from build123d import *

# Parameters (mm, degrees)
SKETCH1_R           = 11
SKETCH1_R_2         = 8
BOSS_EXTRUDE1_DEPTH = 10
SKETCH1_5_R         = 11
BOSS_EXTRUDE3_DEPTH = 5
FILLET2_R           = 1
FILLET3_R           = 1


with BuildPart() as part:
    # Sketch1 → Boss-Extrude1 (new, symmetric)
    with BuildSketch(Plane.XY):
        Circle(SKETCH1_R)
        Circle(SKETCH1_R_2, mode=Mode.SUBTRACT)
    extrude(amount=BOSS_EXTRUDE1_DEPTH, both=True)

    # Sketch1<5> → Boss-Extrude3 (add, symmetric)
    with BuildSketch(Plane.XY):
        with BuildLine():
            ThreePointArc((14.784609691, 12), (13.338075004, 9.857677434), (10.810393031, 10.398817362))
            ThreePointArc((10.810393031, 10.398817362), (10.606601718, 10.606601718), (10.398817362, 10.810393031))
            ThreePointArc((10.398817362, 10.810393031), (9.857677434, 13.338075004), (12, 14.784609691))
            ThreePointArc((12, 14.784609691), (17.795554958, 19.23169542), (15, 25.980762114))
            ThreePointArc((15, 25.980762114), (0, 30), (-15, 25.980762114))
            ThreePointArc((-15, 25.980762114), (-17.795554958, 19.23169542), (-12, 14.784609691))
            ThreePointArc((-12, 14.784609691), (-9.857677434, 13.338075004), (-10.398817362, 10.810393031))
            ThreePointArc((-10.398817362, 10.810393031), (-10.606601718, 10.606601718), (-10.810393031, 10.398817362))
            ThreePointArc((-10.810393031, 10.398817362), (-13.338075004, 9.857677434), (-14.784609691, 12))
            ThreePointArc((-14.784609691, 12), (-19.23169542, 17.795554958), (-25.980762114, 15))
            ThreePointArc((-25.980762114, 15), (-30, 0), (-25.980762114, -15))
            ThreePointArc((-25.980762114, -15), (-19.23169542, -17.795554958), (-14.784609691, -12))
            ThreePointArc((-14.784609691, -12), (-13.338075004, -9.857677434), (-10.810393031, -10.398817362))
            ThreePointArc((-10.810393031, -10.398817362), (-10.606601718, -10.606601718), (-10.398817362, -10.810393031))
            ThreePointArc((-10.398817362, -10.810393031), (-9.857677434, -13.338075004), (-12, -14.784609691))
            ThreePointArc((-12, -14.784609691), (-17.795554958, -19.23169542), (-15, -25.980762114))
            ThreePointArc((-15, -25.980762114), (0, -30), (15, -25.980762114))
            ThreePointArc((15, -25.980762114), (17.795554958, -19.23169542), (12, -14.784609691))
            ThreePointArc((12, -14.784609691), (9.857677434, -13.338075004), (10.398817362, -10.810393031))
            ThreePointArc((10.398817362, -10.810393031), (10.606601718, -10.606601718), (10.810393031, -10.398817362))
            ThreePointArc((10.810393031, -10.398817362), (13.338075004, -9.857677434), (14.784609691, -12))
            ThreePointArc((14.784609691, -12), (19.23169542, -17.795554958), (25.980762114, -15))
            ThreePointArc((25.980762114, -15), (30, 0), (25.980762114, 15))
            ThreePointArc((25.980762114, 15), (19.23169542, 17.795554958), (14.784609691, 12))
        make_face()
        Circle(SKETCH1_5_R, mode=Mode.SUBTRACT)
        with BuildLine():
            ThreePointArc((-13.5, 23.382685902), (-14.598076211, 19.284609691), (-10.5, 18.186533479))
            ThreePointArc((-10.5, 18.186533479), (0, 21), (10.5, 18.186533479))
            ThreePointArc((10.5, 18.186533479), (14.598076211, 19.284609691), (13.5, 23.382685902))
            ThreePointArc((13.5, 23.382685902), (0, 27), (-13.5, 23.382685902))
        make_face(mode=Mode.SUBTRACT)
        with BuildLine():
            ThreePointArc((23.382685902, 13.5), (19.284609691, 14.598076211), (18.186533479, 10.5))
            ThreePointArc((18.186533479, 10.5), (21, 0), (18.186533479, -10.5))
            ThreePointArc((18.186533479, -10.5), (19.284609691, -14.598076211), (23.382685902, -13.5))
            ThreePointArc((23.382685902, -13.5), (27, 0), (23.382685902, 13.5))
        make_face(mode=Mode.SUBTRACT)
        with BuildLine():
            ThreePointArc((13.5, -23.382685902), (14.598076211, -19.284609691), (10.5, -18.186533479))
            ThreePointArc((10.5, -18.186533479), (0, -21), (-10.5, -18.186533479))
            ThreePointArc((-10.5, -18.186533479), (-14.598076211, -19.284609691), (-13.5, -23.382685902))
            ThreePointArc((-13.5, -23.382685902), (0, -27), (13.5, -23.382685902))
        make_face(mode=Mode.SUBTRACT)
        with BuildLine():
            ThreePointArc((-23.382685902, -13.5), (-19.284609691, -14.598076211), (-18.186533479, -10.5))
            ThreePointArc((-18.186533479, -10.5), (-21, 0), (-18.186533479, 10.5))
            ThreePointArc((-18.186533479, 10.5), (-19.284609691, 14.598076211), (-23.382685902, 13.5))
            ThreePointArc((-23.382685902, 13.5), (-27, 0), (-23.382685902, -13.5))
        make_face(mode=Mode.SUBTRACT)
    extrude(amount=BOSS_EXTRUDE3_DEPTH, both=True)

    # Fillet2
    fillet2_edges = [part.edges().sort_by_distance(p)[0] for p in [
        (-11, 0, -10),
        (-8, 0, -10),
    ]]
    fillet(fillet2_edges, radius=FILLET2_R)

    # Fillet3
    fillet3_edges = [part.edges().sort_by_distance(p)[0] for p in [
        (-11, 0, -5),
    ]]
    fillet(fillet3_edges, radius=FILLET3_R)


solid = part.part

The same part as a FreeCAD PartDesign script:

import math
import FreeCAD as App
import Part
import Sketcher


def edges_at(feature, points):
    """Names of the edges that pass closest to the given points."""
    edges = feature.Shape.Edges
    near = lambda p: min(range(len(edges)), key=lambda i: edges[i].distToShape(Part.Vertex(*p))[0])
    return sorted({f"Edge{near(p) + 1}" for p in points})

doc = App.newDocument("Part")
params = doc.addObject("Spreadsheet::Sheet", "Params")
for row, (alias, value) in enumerate([
    ("sketch1_diameter", "22 mm"),
    ("sketch1_diameter2", "16 mm"),
    ("pad1_length", "20 mm"),
    ("sketch2_diameter", "22 mm"),
    ("sketch2_radius", "15.000001 mm"),
    ("sketch2_radius2", "6 mm"),
    ("sketch2_radius3", "30 mm"),
    ("sketch2_radius4", "3 mm"),
    ("pad2_length", "10 mm"),
    ("fillet_radius", "1 mm"),
    ("fillet2_radius", "1 mm"),
], start=1):
    params.set(f"A{row}", alias)
    params.set(f"B{row}", "=" + value)
    params.setAlias(f"B{row}", alias)

body = doc.addObject("PartDesign::Body", "Body")

# Sketch on XY plane
sketch1 = body.newObject("Sketcher::SketchObject", "Sketch")
sketch1.AttachmentSupport = (doc.getObject("XY_Plane"), [""])
sketch1.MapMode = "FlatFace"
sketch1.addGeometry(Part.Circle(App.Vector(0, 0, 0), App.Vector(0, 0, 1), 11), False)
sketch1.addGeometry(Part.Circle(App.Vector(0, 0, 0), App.Vector(0, 0, 1), 8), False)
sketch1.addConstraint(Sketcher.Constraint("Coincident", 0, 3, -1, 1))
sketch1.addConstraint(Sketcher.Constraint("Coincident", 1, 3, -1, 1))
sketch1.addConstraint(Sketcher.Constraint("Diameter", 0, 22.0))
sketch1.addConstraint(Sketcher.Constraint("Diameter", 1, 16.0))
sketch1.setExpression("Constraints[2]", "Params.sketch1_diameter")
sketch1.setExpression("Constraints[3]", "Params.sketch1_diameter2")
pad1 = body.newObject("PartDesign::Pad", "Pad")
pad1.Profile = sketch1
pad1.setExpression("Length", "Params.pad1_length")
pad1.Midplane = True

# Sketch on XY plane
sketch2 = body.newObject("Sketcher::SketchObject", "Sketch001")
sketch2.AttachmentSupport = (doc.getObject("XY_Plane"), [""])
sketch2.MapMode = "FlatFace"
sketch2.addGeometry(Part.ArcOfCircle(Part.Circle(App.Vector(12.474949, 12, 0), App.Vector(0, 0, 1), 2.309661), math.radians(-136.111715), math.radians(0)), False)
sketch2.addGeometry(Part.ArcOfCircle(Part.Circle(App.Vector(-0.000001, -0.000001, 0), App.Vector(0, 0, 1), 15.000001), math.radians(43.888285), math.radians(46.111715)), False)
sketch2.addGeometry(Part.ArcOfCircle(Part.Circle(App.Vector(12, 12.474949, 0), App.Vector(0, 0, 1), 2.309661), math.radians(90), math.radians(226.111715)), False)
sketch2.addGeometry(Part.ArcOfCircle(Part.Circle(App.Vector(12, 20.78461, 0), App.Vector(0, 0, 1), 6), math.radians(-90), math.radians(60)), False)
sketch2.addGeometry(Part.ArcOfCircle(Part.Circle(App.Vector(0, 0, 0), App.Vector(0, 0, 1), 30), math.radians(60), math.radians(120)), False)
sketch2.addGeometry(Part.ArcOfCircle(Part.Circle(App.Vector(-12, 20.78461, 0), App.Vector(0, 0, 1), 6), math.radians(120), math.radians(270)), False)
sketch2.addGeometry(Part.ArcOfCircle(Part.Circle(App.Vector(-12, 12.474949, 0), App.Vector(0, 0, 1), 2.309661), math.radians(-46.111715), math.radians(90)), False)
sketch2.addGeometry(Part.ArcOfCircle(Part.Circle(App.Vector(0.000001, -0.000001, 0), App.Vector(0, 0, 1), 15.000001), math.radians(133.888285), math.radians(136.111715)), False)
sketch2.addGeometry(Part.ArcOfCircle(Part.Circle(App.Vector(-12.474949, 12, 0), App.Vector(0, 0, 1), 2.309661), math.radians(180), math.radians(316.111715)), False)
sketch2.addGeometry(Part.ArcOfCircle(Part.Circle(App.Vector(-20.78461, 12, 0), App.Vector(0, 0, 1), 6), math.radians(0), math.radians(150)), False)
sketch2.addGeometry(Part.ArcOfCircle(Part.Circle(App.Vector(0, 0, 0), App.Vector(0, 0, 1), 30), math.radians(150), math.radians(210)), False)
sketch2.addGeometry(Part.ArcOfCircle(Part.Circle(App.Vector(-20.78461, -12, 0), App.Vector(0, 0, 1), 6), math.radians(-150), math.radians(0)), False)
sketch2.addGeometry(Part.ArcOfCircle(Part.Circle(App.Vector(-12.474949, -12, 0), App.Vector(0, 0, 1), 2.309661), math.radians(43.888285), math.radians(180)), False)
sketch2.addGeometry(Part.ArcOfCircle(Part.Circle(App.Vector(0.000001, 0.000001, 0), App.Vector(0, 0, 1), 15.000001), math.radians(-136.111715), math.radians(-133.888285)), False)
sketch2.addGeometry(Part.ArcOfCircle(Part.Circle(App.Vector(-12, -12.474949, 0), App.Vector(0, 0, 1), 2.309661), math.radians(-90), math.radians(46.111715)), False)
sketch2.addGeometry(Part.ArcOfCircle(Part.Circle(App.Vector(-12, -20.78461, 0), App.Vector(0, 0, 1), 6), math.radians(90), math.radians(240)), False)
sketch2.addGeometry(Part.ArcOfCircle(Part.Circle(App.Vector(0, 0, 0), App.Vector(0, 0, 1), 30), math.radians(-120), math.radians(-60)), False)
sketch2.addGeometry(Part.ArcOfCircle(Part.Circle(App.Vector(12, -20.78461, 0), App.Vector(0, 0, 1), 6), math.radians(-60), math.radians(90)), False)
sketch2.addGeometry(Part.ArcOfCircle(Part.Circle(App.Vector(12, -12.474949, 0), App.Vector(0, 0, 1), 2.309661), math.radians(133.888285), math.radians(270)), False)
sketch2.addGeometry(Part.ArcOfCircle(Part.Circle(App.Vector(-0.000001, 0.000001, 0), App.Vector(0, 0, 1), 15.000001), math.radians(-46.111715), math.radians(-43.888285)), False)
sketch2.addGeometry(Part.ArcOfCircle(Part.Circle(App.Vector(12.474949, -12, 0), App.Vector(0, 0, 1), 2.309661), math.radians(0), math.radians(136.111715)), False)
sketch2.addGeometry(Part.ArcOfCircle(Part.Circle(App.Vector(20.78461, -12, 0), App.Vector(0, 0, 1), 6), math.radians(180), math.radians(330)), False)
sketch2.addGeometry(Part.ArcOfCircle(Part.Circle(App.Vector(0, 0, 0), App.Vector(0, 0, 1), 30), math.radians(-30), math.radians(30)), False)
sketch2.addGeometry(Part.ArcOfCircle(Part.Circle(App.Vector(20.78461, 12, 0), App.Vector(0, 0, 1), 6), math.radians(30), math.radians(180)), False)
sketch2.addGeometry(Part.ArcOfCircle(Part.Circle(App.Vector(12, -20.78461, 0), App.Vector(0, 0, 1), 3), math.radians(-60), math.radians(120)), False)
sketch2.addGeometry(Part.ArcOfCircle(Part.Circle(App.Vector(0, 0, 0), App.Vector(0, 0, 1), 27), math.radians(-120), math.radians(-60)), False)
sketch2.addGeometry(Part.ArcOfCircle(Part.Circle(App.Vector(-12, -20.78461, 0), App.Vector(0, 0, 1), 3), math.radians(60), math.radians(240)), False)
sketch2.addGeometry(Part.ArcOfCircle(Part.Circle(App.Vector(0, 0, 0), App.Vector(0, 0, 1), 21), math.radians(-120), math.radians(-60)), False)
sketch2.addGeometry(Part.ArcOfCircle(Part.Circle(App.Vector(-20.78461, -12, 0), App.Vector(0, 0, 1), 3), math.radians(-150), math.radians(30)), False)
sketch2.addGeometry(Part.ArcOfCircle(Part.Circle(App.Vector(0, 0, 0), App.Vector(0, 0, 1), 27), math.radians(150), math.radians(210)), False)
sketch2.addGeometry(Part.ArcOfCircle(Part.Circle(App.Vector(-20.78461, 12, 0), App.Vector(0, 0, 1), 3), math.radians(-30), math.radians(150)), False)
sketch2.addGeometry(Part.ArcOfCircle(Part.Circle(App.Vector(0, 0, 0), App.Vector(0, 0, 1), 21), math.radians(150), math.radians(210)), False)
sketch2.addGeometry(Part.Circle(App.Vector(0, 0, 0), App.Vector(0, 0, 1), 11), False)
sketch2.addGeometry(Part.ArcOfCircle(Part.Circle(App.Vector(20.78461, 12, 0), App.Vector(0, 0, 1), 3), math.radians(30), math.radians(210)), False)
sketch2.addGeometry(Part.ArcOfCircle(Part.Circle(App.Vector(0, 0, 0), App.Vector(0, 0, 1), 27), math.radians(-30), math.radians(30)), False)
sketch2.addGeometry(Part.ArcOfCircle(Part.Circle(App.Vector(20.78461, -12, 0), App.Vector(0, 0, 1), 3), math.radians(150), math.radians(330)), False)
sketch2.addGeometry(Part.ArcOfCircle(Part.Circle(App.Vector(0, 0, 0), App.Vector(0, 0, 1), 21), math.radians(-30), math.radians(30)), False)
sketch2.addGeometry(Part.ArcOfCircle(Part.Circle(App.Vector(-12, 20.78461, 0), App.Vector(0, 0, 1), 3), math.radians(120), math.radians(300)), False)
sketch2.addGeometry(Part.ArcOfCircle(Part.Circle(App.Vector(0, 0, 0), App.Vector(0, 0, 1), 27), math.radians(60), math.radians(120)), False)
sketch2.addGeometry(Part.ArcOfCircle(Part.Circle(App.Vector(12, 20.78461, 0), App.Vector(0, 0, 1), 3), math.radians(-120), math.radians(60)), False)
sketch2.addGeometry(Part.ArcOfCircle(Part.Circle(App.Vector(0, 0, 0), App.Vector(0, 0, 1), 21), math.radians(60), math.radians(120)), False)
sketch2.addConstraint(Sketcher.Constraint("Tangent", 0, 1, 1, 1))
sketch2.addConstraint(Sketcher.Constraint("Tangent", 1, 2, 2, 2))
sketch2.addConstraint(Sketcher.Constraint("Tangent", 2, 1, 3, 1))
sketch2.addConstraint(Sketcher.Constraint("Tangent", 3, 2, 4, 1))
sketch2.addConstraint(Sketcher.Constraint("Tangent", 4, 2, 5, 1))
sketch2.addConstraint(Sketcher.Constraint("Tangent", 5, 2, 6, 2))
sketch2.addConstraint(Sketcher.Constraint("Tangent", 6, 1, 7, 1))
sketch2.addConstraint(Sketcher.Constraint("Tangent", 7, 2, 8, 2))
sketch2.addConstraint(Sketcher.Constraint("Tangent", 8, 1, 9, 1))
sketch2.addConstraint(Sketcher.Constraint("Tangent", 9, 2, 10, 1))
sketch2.addConstraint(Sketcher.Constraint("Tangent", 10, 2, 11, 1))
sketch2.addConstraint(Sketcher.Constraint("Tangent", 11, 2, 12, 2))
sketch2.addConstraint(Sketcher.Constraint("Tangent", 12, 1, 13, 1))
sketch2.addConstraint(Sketcher.Constraint("Tangent", 13, 2, 14, 2))
sketch2.addConstraint(Sketcher.Constraint("Tangent", 14, 1, 15, 1))
sketch2.addConstraint(Sketcher.Constraint("Tangent", 15, 2, 16, 1))
sketch2.addConstraint(Sketcher.Constraint("Tangent", 16, 2, 17, 1))
sketch2.addConstraint(Sketcher.Constraint("Tangent", 17, 2, 18, 2))
sketch2.addConstraint(Sketcher.Constraint("Tangent", 18, 1, 19, 1))
sketch2.addConstraint(Sketcher.Constraint("Tangent", 19, 2, 20, 2))
sketch2.addConstraint(Sketcher.Constraint("Tangent", 20, 1, 21, 1))
sketch2.addConstraint(Sketcher.Constraint("Tangent", 21, 2, 22, 1))
sketch2.addConstraint(Sketcher.Constraint("Tangent", 22, 2, 23, 1))
sketch2.addConstraint(Sketcher.Constraint("Tangent", 23, 2, 0, 2))
sketch2.addConstraint(Sketcher.Constraint("Tangent", 24, 1, 25, 2))
sketch2.addConstraint(Sketcher.Constraint("Tangent", 25, 1, 26, 2))
sketch2.addConstraint(Sketcher.Constraint("Tangent", 26, 1, 27, 1))
sketch2.addConstraint(Sketcher.Constraint("Tangent", 27, 2, 24, 2))
sketch2.addConstraint(Sketcher.Constraint("Tangent", 28, 1, 29, 2))
sketch2.addConstraint(Sketcher.Constraint("Tangent", 29, 1, 30, 2))
sketch2.addConstraint(Sketcher.Constraint("Tangent", 30, 1, 31, 1))
sketch2.addConstraint(Sketcher.Constraint("Tangent", 31, 2, 28, 2))
sketch2.addConstraint(Sketcher.Constraint("Tangent", 33, 1, 34, 2))
sketch2.addConstraint(Sketcher.Constraint("Tangent", 34, 1, 35, 2))
sketch2.addConstraint(Sketcher.Constraint("Tangent", 35, 1, 36, 1))
sketch2.addConstraint(Sketcher.Constraint("Tangent", 36, 2, 33, 2))
sketch2.addConstraint(Sketcher.Constraint("Tangent", 37, 1, 38, 2))
sketch2.addConstraint(Sketcher.Constraint("Tangent", 38, 1, 39, 2))
sketch2.addConstraint(Sketcher.Constraint("Tangent", 39, 1, 40, 1))
sketch2.addConstraint(Sketcher.Constraint("Tangent", 40, 2, 37, 2))
sketch2.addConstraint(Sketcher.Constraint("Coincident", 1, 3, -1, 1))
sketch2.addConstraint(Sketcher.Constraint("Coincident", 4, 3, -1, 1))
sketch2.addConstraint(Sketcher.Constraint("Coincident", 7, 3, -1, 1))
sketch2.addConstraint(Sketcher.Constraint("Coincident", 10, 3, -1, 1))
sketch2.addConstraint(Sketcher.Constraint("Coincident", 13, 3, -1, 1))
sketch2.addConstraint(Sketcher.Constraint("Coincident", 16, 3, -1, 1))
sketch2.addConstraint(Sketcher.Constraint("Coincident", 19, 3, -1, 1))
sketch2.addConstraint(Sketcher.Constraint("Coincident", 22, 3, -1, 1))
sketch2.addConstraint(Sketcher.Constraint("Coincident", 25, 3, -1, 1))
sketch2.addConstraint(Sketcher.Constraint("Coincident", 27, 3, -1, 1))
sketch2.addConstraint(Sketcher.Constraint("Coincident", 29, 3, -1, 1))
sketch2.addConstraint(Sketcher.Constraint("Coincident", 31, 3, -1, 1))
sketch2.addConstraint(Sketcher.Constraint("Coincident", 32, 3, -1, 1))
sketch2.addConstraint(Sketcher.Constraint("Coincident", 34, 3, -1, 1))
sketch2.addConstraint(Sketcher.Constraint("Coincident", 36, 3, -1, 1))
sketch2.addConstraint(Sketcher.Constraint("Coincident", 38, 3, -1, 1))
sketch2.addConstraint(Sketcher.Constraint("Coincident", 40, 3, -1, 1))
sketch2.addConstraint(Sketcher.Constraint("Coincident", 24, 3, 17, 3))
sketch2.addConstraint(Sketcher.Constraint("Coincident", 26, 3, 15, 3))
sketch2.addConstraint(Sketcher.Constraint("Coincident", 28, 3, 11, 3))
sketch2.addConstraint(Sketcher.Constraint("Coincident", 30, 3, 9, 3))
sketch2.addConstraint(Sketcher.Constraint("Coincident", 33, 3, 23, 3))
sketch2.addConstraint(Sketcher.Constraint("Coincident", 35, 3, 21, 3))
sketch2.addConstraint(Sketcher.Constraint("Coincident", 37, 3, 5, 3))
sketch2.addConstraint(Sketcher.Constraint("Coincident", 39, 3, 3, 3))
sketch2.addConstraint(Sketcher.Constraint("Equal", 0, 2))
sketch2.addConstraint(Sketcher.Constraint("Equal", 2, 6))
sketch2.addConstraint(Sketcher.Constraint("Equal", 1, 7))
sketch2.addConstraint(Sketcher.Constraint("Equal", 6, 8))
sketch2.addConstraint(Sketcher.Constraint("Equal", 5, 9))
sketch2.addConstraint(Sketcher.Constraint("Equal", 4, 10))
sketch2.addConstraint(Sketcher.Constraint("Equal", 8, 12))
sketch2.addConstraint(Sketcher.Constraint("Equal", 7, 13))
sketch2.addConstraint(Sketcher.Constraint("Equal", 12, 14))
sketch2.addConstraint(Sketcher.Constraint("Equal", 11, 15))
sketch2.addConstraint(Sketcher.Constraint("Equal", 10, 16))
sketch2.addConstraint(Sketcher.Constraint("Equal", 14, 18))
sketch2.addConstraint(Sketcher.Constraint("Equal", 13, 19))
sketch2.addConstraint(Sketcher.Constraint("Equal", 18, 20))
sketch2.addConstraint(Sketcher.Constraint("Equal", 17, 21))
sketch2.addConstraint(Sketcher.Constraint("Equal", 16, 22))
sketch2.addConstraint(Sketcher.Constraint("Equal", 26, 28))
sketch2.addConstraint(Sketcher.Constraint("Equal", 30, 33))
sketch2.addConstraint(Sketcher.Constraint("Equal", 35, 37))
sketch2.addConstraint(Sketcher.Constraint("Horizontal", 3, 3, 5, 3))
sketch2.addConstraint(Sketcher.Constraint("Horizontal", 0, 3, 8, 3))
sketch2.addConstraint(Sketcher.Constraint("Horizontal", 8, 3, 9, 3))
sketch2.addConstraint(Sketcher.Constraint("Horizontal", 11, 3, 12, 3))
sketch2.addConstraint(Sketcher.Constraint("Horizontal", 15, 3, 17, 3))
sketch2.addConstraint(Sketcher.Constraint("Horizontal", 12, 3, 20, 3))
sketch2.addConstraint(Sketcher.Constraint("Vertical", 2, 3, 3, 3))
sketch2.addConstraint(Sketcher.Constraint("Vertical", 6, 3, 14, 3))
sketch2.addConstraint(Sketcher.Constraint("Diameter", 32, 22.0))
sketch2.addConstraint(Sketcher.Constraint("Radius", 1, 15.000001))
sketch2.addConstraint(Sketcher.Constraint("Radius", 3, 6.0))
sketch2.addConstraint(Sketcher.Constraint("Radius", 4, 30.0))
sketch2.addConstraint(Sketcher.Constraint("Radius", 24, 3.0))
sketch2.addConstraint(Sketcher.Constraint("DistanceY", -1, 1, 0, 3, 12.0))
sketch2.setExpression("Constraints[92]", "Params.sketch2_diameter")
sketch2.setExpression("Constraints[93]", "Params.sketch2_radius")
sketch2.setExpression("Constraints[94]", "Params.sketch2_radius2")
sketch2.setExpression("Constraints[95]", "Params.sketch2_radius3")
sketch2.setExpression("Constraints[96]", "Params.sketch2_radius4")
pad2 = body.newObject("PartDesign::Pad", "Pad001")
pad2.Profile = sketch2
pad2.setExpression("Length", "Params.pad2_length")
pad2.Midplane = True
doc.recompute()

fillet = body.newObject("PartDesign::Fillet", "Fillet")
fillet.Base = (pad2, edges_at(pad2, [(-11, 0, -10), (-8, 0, -10)]))
fillet.setExpression("Radius", "Params.fillet_radius")
doc.recompute()

fillet2 = body.newObject("PartDesign::Fillet", "Fillet001")
fillet2.Base = (fillet, edges_at(fillet, [(-11, 0, -5)]))
fillet2.setExpression("Radius", "Params.fillet2_radius")

doc.recompute()
